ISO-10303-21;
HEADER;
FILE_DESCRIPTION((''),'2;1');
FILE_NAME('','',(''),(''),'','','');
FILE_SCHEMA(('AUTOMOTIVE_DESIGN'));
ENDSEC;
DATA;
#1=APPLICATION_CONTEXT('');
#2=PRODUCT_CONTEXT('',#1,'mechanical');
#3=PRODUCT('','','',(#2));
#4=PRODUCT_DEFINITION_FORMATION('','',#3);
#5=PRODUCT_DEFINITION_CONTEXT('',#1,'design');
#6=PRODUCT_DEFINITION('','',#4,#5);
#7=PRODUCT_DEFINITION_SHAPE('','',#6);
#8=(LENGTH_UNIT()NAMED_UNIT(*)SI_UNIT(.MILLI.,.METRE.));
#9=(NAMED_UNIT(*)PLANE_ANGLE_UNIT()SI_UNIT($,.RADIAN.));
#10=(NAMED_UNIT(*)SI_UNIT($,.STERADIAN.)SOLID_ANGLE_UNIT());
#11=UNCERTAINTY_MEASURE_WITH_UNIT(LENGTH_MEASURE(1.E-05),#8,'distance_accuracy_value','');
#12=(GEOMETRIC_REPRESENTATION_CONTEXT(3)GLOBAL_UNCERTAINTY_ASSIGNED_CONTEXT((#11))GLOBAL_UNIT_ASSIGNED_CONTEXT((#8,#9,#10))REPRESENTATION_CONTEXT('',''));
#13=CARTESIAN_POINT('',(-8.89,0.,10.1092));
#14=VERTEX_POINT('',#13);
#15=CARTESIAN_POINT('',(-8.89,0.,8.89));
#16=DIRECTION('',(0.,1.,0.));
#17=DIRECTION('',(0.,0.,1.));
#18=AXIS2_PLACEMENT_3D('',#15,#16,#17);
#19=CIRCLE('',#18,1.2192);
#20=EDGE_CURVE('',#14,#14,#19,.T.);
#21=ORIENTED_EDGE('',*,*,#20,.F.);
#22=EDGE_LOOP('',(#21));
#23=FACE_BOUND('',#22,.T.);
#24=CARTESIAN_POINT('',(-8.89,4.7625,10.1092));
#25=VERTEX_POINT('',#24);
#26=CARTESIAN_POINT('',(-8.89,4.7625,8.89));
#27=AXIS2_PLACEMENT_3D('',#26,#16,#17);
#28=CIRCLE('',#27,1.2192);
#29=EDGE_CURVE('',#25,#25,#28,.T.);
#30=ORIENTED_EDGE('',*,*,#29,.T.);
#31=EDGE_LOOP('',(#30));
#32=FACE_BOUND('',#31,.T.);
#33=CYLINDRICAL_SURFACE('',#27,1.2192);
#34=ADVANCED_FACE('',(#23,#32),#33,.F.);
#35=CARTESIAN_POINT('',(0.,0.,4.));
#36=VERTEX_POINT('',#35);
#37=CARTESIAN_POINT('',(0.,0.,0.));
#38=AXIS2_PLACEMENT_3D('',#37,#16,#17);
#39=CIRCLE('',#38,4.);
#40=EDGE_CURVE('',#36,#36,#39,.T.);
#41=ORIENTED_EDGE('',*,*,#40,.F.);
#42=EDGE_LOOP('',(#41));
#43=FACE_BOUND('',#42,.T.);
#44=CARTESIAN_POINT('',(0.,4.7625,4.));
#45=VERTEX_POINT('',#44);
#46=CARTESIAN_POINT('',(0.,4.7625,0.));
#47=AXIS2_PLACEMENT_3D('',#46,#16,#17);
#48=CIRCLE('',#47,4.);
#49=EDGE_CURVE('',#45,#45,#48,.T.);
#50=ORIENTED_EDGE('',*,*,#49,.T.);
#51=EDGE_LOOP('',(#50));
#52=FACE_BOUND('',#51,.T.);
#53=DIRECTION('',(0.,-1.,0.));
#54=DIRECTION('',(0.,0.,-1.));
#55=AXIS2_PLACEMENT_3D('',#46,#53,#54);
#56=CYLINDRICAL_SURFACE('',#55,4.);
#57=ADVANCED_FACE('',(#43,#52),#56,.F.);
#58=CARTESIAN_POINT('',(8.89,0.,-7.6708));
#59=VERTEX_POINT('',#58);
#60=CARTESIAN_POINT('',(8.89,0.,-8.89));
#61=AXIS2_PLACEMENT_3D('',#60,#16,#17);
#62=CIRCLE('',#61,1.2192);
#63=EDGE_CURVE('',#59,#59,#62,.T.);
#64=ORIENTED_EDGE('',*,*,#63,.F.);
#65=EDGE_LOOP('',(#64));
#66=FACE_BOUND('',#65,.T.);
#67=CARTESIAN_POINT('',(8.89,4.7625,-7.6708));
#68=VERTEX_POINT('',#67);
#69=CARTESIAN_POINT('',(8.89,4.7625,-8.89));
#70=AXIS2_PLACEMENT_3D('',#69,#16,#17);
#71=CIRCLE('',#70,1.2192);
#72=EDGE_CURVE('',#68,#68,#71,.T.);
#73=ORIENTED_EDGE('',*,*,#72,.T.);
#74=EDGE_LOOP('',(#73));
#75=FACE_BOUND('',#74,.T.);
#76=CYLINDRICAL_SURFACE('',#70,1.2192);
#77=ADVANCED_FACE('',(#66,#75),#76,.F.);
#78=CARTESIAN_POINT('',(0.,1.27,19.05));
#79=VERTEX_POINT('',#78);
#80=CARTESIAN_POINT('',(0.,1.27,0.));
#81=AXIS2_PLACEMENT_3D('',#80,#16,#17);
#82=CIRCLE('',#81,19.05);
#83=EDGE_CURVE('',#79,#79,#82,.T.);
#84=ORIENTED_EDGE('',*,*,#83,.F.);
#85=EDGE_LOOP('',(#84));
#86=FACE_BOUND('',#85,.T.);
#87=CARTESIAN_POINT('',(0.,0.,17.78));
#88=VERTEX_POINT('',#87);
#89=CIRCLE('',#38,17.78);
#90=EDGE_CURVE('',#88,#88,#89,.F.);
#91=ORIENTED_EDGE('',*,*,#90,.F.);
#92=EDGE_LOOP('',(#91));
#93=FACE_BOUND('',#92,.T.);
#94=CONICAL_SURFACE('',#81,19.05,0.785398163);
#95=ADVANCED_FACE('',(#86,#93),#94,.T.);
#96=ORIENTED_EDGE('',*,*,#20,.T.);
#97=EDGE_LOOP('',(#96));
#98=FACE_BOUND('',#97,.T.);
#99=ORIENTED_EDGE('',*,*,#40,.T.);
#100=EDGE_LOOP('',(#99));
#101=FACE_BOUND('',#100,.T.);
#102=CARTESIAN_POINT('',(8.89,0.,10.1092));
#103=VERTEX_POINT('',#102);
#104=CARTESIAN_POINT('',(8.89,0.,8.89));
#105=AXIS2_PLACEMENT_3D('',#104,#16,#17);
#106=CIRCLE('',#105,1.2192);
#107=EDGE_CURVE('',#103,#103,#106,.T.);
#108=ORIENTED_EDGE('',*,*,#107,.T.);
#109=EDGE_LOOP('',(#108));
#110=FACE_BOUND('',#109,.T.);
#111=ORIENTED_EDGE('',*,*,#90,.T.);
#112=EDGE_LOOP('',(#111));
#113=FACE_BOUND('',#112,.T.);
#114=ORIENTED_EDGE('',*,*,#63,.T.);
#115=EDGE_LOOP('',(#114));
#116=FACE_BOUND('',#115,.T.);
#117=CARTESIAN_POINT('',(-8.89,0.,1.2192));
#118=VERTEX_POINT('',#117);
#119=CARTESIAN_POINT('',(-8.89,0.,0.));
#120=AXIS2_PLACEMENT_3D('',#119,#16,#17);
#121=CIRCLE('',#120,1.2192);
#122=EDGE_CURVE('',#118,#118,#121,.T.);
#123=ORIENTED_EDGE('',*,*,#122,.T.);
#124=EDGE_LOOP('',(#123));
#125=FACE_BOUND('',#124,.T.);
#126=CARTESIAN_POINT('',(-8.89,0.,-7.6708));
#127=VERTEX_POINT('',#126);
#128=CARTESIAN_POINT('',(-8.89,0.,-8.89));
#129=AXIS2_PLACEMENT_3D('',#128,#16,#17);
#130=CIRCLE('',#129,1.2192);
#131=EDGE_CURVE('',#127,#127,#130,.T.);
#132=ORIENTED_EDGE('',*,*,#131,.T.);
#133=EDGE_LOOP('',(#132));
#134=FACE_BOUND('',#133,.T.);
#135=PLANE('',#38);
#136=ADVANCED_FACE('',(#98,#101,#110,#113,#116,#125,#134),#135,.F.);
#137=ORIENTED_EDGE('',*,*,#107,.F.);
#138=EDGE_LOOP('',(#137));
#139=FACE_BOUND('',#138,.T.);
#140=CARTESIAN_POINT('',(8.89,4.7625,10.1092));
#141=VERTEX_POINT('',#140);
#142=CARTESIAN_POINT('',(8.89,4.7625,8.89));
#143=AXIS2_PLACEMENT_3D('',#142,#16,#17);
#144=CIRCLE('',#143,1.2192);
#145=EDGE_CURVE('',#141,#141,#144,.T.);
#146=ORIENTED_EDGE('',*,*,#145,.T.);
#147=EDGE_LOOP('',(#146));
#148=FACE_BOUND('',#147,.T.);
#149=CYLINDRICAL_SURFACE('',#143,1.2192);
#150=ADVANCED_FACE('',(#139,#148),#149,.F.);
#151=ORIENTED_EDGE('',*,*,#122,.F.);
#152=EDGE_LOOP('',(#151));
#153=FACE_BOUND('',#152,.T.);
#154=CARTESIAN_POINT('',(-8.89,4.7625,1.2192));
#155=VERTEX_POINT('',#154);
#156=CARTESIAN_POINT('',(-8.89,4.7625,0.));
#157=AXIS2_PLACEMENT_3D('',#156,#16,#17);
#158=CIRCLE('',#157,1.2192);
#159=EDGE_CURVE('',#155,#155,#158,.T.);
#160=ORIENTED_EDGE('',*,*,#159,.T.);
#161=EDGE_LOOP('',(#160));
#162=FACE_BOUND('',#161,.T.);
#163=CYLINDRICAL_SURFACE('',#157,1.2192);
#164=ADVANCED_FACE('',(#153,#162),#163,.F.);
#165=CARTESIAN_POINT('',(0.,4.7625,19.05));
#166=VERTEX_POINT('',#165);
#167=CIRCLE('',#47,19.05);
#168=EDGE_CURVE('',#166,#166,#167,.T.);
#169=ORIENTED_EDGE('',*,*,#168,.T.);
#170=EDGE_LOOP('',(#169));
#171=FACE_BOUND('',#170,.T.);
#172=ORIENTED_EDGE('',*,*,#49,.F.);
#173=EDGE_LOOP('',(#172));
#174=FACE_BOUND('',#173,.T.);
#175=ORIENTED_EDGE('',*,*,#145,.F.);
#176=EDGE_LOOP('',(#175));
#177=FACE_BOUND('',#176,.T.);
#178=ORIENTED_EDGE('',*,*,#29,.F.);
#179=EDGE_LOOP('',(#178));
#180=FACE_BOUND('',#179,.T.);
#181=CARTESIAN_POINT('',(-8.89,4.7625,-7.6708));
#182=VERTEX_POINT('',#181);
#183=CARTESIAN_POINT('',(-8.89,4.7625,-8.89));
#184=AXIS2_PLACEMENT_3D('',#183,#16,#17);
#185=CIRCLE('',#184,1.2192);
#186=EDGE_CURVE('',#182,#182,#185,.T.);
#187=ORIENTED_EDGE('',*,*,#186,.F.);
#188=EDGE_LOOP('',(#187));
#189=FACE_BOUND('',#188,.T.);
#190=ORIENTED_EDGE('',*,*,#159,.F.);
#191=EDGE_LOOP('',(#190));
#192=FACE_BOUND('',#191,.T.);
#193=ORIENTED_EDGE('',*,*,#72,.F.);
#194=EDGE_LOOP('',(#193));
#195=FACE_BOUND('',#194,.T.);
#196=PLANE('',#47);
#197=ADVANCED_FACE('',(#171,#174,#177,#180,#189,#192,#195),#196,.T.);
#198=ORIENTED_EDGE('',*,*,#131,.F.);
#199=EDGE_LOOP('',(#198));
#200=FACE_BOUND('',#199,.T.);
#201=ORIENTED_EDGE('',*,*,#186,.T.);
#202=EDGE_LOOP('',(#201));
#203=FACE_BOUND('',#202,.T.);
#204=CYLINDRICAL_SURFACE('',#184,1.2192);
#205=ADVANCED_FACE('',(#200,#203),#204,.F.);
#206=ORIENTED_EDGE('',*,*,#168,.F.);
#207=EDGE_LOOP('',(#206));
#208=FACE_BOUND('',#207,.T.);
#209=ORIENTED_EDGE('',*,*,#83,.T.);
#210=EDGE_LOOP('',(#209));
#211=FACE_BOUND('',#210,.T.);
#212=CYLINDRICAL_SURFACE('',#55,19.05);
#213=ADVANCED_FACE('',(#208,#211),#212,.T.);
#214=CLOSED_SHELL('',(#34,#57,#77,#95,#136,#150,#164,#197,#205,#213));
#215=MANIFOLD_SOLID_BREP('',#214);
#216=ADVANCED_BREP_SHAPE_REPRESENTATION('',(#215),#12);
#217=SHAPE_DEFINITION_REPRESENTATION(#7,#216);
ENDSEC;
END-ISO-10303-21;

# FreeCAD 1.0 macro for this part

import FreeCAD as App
import Part
import Sketcher

V = App.Vector
Q = App.Units.Quantity


def edges_at(feature, points):
    """Names of the edges that pass closest to the given points."""
    edges = feature.Shape.Edges
    near = lambda p: min(range(len(edges)), key=lambda i: edges[i].distToShape(Part.Vertex(*p))[0])
    return sorted({f"Edge{near(p) + 1}" for p in points})

doc = App.newDocument("Part")
body = doc.addObject("PartDesign::Body", "Body")

sketch1 = body.newObject("Sketcher::SketchObject", "Sketch")
sketch1.AttachmentSupport = (doc.getObject("XZ_Plane"), [""])
sketch1.MapMode = "FlatFace"
sketch1.addGeometry(Part.Circle(V(0, 0, 0), V(0, 0, 1), 19.1), False)
sketch1.addGeometry(Part.Circle(V(0, 0, 0), V(0, 0, 1), 4), False)
sketch1.addConstraint(Sketcher.Constraint("Coincident", 0, 3, -1, 1))
sketch1.addConstraint(Sketcher.Constraint("Coincident", 1, 3, -1, 1))
sketch1.addConstraint(Sketcher.Constraint("Diameter", 0, Q("1.5 in")))
sketch1.addConstraint(Sketcher.Constraint("Diameter", 1, Q("8 mm")))
pad1 = body.newObject("PartDesign::Pad", "Pad")
pad1.Profile = sketch1
pad1.Length = Q("0.1875 in")
pad1.Reversed = True

sketch2 = body.newObject("Sketcher::SketchObject", "Sketch001")
sketch2.AttachmentSupport = (doc.getObject("XZ_Plane"), [""])
sketch2.MapMode = "FlatFace"
sketch2.AttachmentOffset = App.Placement(V(0, 0, -0.1875 * 25.4), App.Rotation())
sketch2.addGeometry(Part.Circle(V(-8.9, -8.9, 0), V(0, 0, 1), 1.2), False)
sketch2.addGeometry(Part.Circle(V(8.9, -8.9, 0), V(0, 0, 1), 1.2), False)
sketch2.addGeometry(Part.Circle(V(-8.9, 8.9, 0), V(0, 0, 1), 1.2), False)
sketch2.addGeometry(Part.Circle(V(8.9, 8.9, 0), V(0, 0, 1), 1.2), False)
sketch2.addGeometry(Part.Circle(V(-8.9, 0, 0), V(0, 0, 1), 1.2), False)
sketch2.addConstraint(Sketcher.Constraint("Equal", 0, 1))
sketch2.addConstraint(Sketcher.Constraint("Equal", 1, 2))
sketch2.addConstraint(Sketcher.Constraint("Equal", 2, 3))
sketch2.addConstraint(Sketcher.Constraint("Equal", 3, 4))
sketch2.addConstraint(Sketcher.Constraint("Symmetric", 1, 3, 2, 3, -1, 1))
sketch2.addConstraint(Sketcher.Constraint("Symmetric", 0, 3, 3, 3, -1, 1))
sketch2.addConstraint(Sketcher.Constraint("Symmetric", 0, 3, 1, 3, -2))
sketch2.addConstraint(Sketcher.Constraint("PointOnObject", 4, 3, -1))
sketch2.addConstraint(Sketcher.Constraint("Vertical", 2, 3, 4, 3))
sketch2.addConstraint(Sketcher.Constraint("Diameter", 0, Q("0.096 in")))
sketch2.addConstraint(Sketcher.Constraint("DistanceX", 0, 3, 1, 3, Q("0.7 in")))
sketch2.addConstraint(Sketcher.Constraint("DistanceY", 0, 3, 2, 3, Q("0.7 in")))
doc.recompute()
hole = body.newObject("PartDesign::Hole", "Hole")
hole.Profile = sketch2
hole.ThreadType = "None"
hole.Diameter = Q("0.096 in")
hole.DepthType = "Dimension"
hole.Depth = Q("0.1875 in")
hole.DrillPoint = "Flat"
hole.Reversed = True
doc.recompute()

chamfer = body.newObject("PartDesign::Chamfer", "Chamfer")
chamfer.Base = (hole, edges_at(hole, [(-19.05, 0, 0)]))
chamfer.Size = Q("0.05 in")

doc.recompute()
